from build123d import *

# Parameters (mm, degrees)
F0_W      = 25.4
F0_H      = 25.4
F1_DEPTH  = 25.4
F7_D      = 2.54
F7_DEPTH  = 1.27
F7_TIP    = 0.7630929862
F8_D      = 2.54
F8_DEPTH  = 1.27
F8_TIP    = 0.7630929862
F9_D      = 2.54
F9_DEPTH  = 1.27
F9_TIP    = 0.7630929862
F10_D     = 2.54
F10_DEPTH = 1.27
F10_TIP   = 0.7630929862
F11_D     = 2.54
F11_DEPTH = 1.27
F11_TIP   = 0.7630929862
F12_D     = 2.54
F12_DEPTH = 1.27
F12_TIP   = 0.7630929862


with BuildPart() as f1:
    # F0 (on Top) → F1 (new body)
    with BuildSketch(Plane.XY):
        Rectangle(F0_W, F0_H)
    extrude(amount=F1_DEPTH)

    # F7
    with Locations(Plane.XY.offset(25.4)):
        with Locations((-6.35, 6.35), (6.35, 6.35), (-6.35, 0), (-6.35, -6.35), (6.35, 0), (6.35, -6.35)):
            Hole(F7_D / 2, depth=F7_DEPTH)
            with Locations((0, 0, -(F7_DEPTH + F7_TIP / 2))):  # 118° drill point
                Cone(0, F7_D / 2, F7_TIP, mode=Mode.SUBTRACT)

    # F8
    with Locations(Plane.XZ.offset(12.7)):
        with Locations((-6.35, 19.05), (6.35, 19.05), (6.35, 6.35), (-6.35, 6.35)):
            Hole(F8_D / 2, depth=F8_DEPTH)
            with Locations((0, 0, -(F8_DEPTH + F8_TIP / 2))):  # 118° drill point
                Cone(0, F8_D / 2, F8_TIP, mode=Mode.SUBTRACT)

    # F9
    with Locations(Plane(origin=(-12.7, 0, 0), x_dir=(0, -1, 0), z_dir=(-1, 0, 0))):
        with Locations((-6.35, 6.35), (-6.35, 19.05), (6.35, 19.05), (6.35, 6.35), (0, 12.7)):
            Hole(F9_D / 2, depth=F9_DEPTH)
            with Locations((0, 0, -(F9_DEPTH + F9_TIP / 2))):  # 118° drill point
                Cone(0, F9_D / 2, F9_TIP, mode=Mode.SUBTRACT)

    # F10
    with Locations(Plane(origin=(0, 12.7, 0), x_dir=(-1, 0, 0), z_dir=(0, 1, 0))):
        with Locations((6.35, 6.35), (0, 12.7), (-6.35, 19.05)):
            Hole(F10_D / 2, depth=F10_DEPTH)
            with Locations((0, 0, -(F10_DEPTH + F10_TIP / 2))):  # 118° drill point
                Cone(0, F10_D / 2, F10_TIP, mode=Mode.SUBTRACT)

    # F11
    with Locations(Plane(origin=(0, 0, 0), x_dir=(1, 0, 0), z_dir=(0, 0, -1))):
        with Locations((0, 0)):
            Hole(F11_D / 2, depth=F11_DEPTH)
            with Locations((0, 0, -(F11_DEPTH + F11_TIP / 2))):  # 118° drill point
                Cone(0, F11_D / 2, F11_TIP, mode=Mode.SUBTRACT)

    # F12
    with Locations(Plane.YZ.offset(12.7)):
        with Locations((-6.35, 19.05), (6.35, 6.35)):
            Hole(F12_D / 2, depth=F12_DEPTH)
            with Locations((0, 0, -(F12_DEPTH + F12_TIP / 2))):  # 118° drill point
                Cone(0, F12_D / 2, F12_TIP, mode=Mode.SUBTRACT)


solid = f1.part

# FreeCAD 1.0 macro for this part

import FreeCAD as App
import Part
import Sketcher
Q = App.Units.Quantity

doc = App.newDocument("Part")
params = doc.addObject("Spreadsheet::Sheet", "Params")
for row, (alias, value) in enumerate([
    ("sketch1_width", "1 in"),
    ("pad1_length", "1 in"),
    ("sketch2_diameter", "0.1 in"),
    ("hole_diameter", "0.1 in"),
    ("hole_depth", "0.05 in"),
    ("sketch3_diameter", "0.1 in"),
    ("hole2_diameter", "0.1 in"),
    ("hole2_depth", "0.05 in"),
    ("sketch4_diameter", "0.1 in"),
    ("hole3_diameter", "0.1 in"),
    ("hole3_depth", "0.05 in"),
    ("sketch5_diameter", "0.1 in"),
    ("hole4_diameter", "0.1 in"),
    ("hole4_depth", "0.05 in"),
    ("sketch6_diameter", "0.1 in"),
    ("hole5_diameter", "0.1 in"),
    ("hole5_depth", "0.05 in"),
    ("sketch7_diameter", "0.1 in"),
    ("hole6_diameter", "0.1 in"),
    ("hole6_depth", "0.05 in"),
], start=1):
    params.set(f"A{row}", alias)
    params.set(f"B{row}", "=" + value)
    params.setAlias(f"B{row}", alias)

body = doc.addObject("PartDesign::Body", "Body")

sketch1 = body.newObject("Sketcher::SketchObject", "Sketch")
sketch1.AttachmentSupport = (doc.getObject("XY_Plane"), [""])
sketch1.MapMode = "FlatFace"
sketch1.addGeometry(Part.LineSegment(App.Vector(-12.7, 12.7, 0), App.Vector(-12.7, -12.7, 0)), False)
sketch1.addGeometry(Part.LineSegment(App.Vector(-12.7, -12.7, 0), App.Vector(12.7, -12.7, 0)), False)
sketch1.addGeometry(Part.LineSegment(App.Vector(12.7, -12.7, 0), App.Vector(12.7, 12.7, 0)), False)
sketch1.addGeometry(Part.LineSegment(App.Vector(12.7, 12.7, 0), App.Vector(-12.7, 12.7, 0)), False)
sketch1.addConstraint(Sketcher.Constraint("Coincident", 0, 2, 1, 1))
sketch1.addConstraint(Sketcher.Constraint("Coincident", 1, 2, 2, 1))
sketch1.addConstraint(Sketcher.Constraint("Coincident", 2, 2, 3, 1))
sketch1.addConstraint(Sketcher.Constraint("Coincident", 3, 2, 0, 1))
sketch1.addConstraint(Sketcher.Constraint("Vertical", 0))
sketch1.addConstraint(Sketcher.Constraint("Horizontal", 1))
sketch1.addConstraint(Sketcher.Constraint("Vertical", 2))
sketch1.addConstraint(Sketcher.Constraint("Horizontal", 3))
sketch1.addConstraint(Sketcher.Constraint("Symmetric", 0, 2, 2, 2, -1, 1))
sketch1.addConstraint(Sketcher.Constraint("Equal", 3, 0))
sketch1.addConstraint(Sketcher.Constraint("DistanceX", 1, 1, 1, 2, Q("1 in")))
sketch1.setExpression("Constraints[10]", "Params.sketch1_width")
pad1 = body.newObject("PartDesign::Pad", "Pad")
pad1.Profile = sketch1
pad1.setExpression("Length", "Params.pad1_length")

sketch2 = body.newObject("Sketcher::SketchObject", "Sketch001")
sketch2.AttachmentSupport = (doc.getObject("XY_Plane"), [""])
sketch2.MapMode = "FlatFace"
sketch2.AttachmentOffset = App.Placement(App.Vector(0, 0, 1 * 25.4), App.Rotation())
sketch2.addGeometry(Part.Circle(App.Vector(-6.35, 6.35, 0), App.Vector(0, 0, 1), 1.27), False)
sketch2.addGeometry(Part.Circle(App.Vector(6.35, 6.35, 0), App.Vector(0, 0, 1), 1.27), False)
sketch2.addGeometry(Part.Circle(App.Vector(-6.35, 0, 0), App.Vector(0, 0, 1), 1.27), False)
sketch2.addGeometry(Part.Circle(App.Vector(-6.35, -6.35, 0), App.Vector(0, 0, 1), 1.27), False)
sketch2.addGeometry(Part.Circle(App.Vector(6.35, 0, 0), App.Vector(0, 0, 1), 1.27), False)
sketch2.addGeometry(Part.Circle(App.Vector(6.35, -6.35, 0), App.Vector(0, 0, 1), 1.27), False)
sketch2.addConstraint(Sketcher.Constraint("Equal", 0, 1))
sketch2.addConstraint(Sketcher.Constraint("Equal", 1, 2))
sketch2.addConstraint(Sketcher.Constraint("Equal", 2, 3))
sketch2.addConstraint(Sketcher.Constraint("Equal", 3, 4))
sketch2.addConstraint(Sketcher.Constraint("Equal", 4, 5))
sketch2.addConstraint(Sketcher.Constraint("Symmetric", 1, 3, 3, 3, -1, 1))
sketch2.addConstraint(Sketcher.Constraint("Symmetric", 2, 3, 4, 3, -1, 1))
sketch2.addConstraint(Sketcher.Constraint("Symmetric", 0, 3, 5, 3, -1, 1))
sketch2.addConstraint(Sketcher.Constraint("Symmetric", 0, 3, 1, 3, -2))
sketch2.addConstraint(Sketcher.Constraint("PointOnObject", 2, 3, -1))
sketch2.addConstraint(Sketcher.Constraint("Vertical", 0, 3, 2, 3))
sketch2.addConstraint(Sketcher.Constraint("Diameter", 0, Q("0.1 in")))
sketch2.addConstraint(Sketcher.Constraint("DistanceX", 0, 3, 1, 3, Q("0.5 in")))
sketch2.addConstraint(Sketcher.Constraint("DistanceY", 3, 3, 0, 3, Q("0.5 in")))
sketch2.setExpression("Constraints[11]", "Params.sketch2_diameter")
doc.recompute()
hole = body.newObject("PartDesign::Hole", "Hole")
hole.Profile = sketch2
hole.ThreadType = "None"
hole.setExpression("Diameter", "Params.hole_diameter")
hole.DepthType = "Dimension"
hole.setExpression("Depth", "Params.hole_depth")
hole.DrillPoint = "Angled"
hole.DrillPointAngle = 118

sketch3 = body.newObject("Sketcher::SketchObject", "Sketch002")
sketch3.AttachmentSupport = (doc.getObject("XZ_Plane"), [""])
sketch3.MapMode = "FlatFace"
sketch3.AttachmentOffset = App.Placement(App.Vector(0, 0, 0.5 * 25.4), App.Rotation())
sketch3.addGeometry(Part.Circle(App.Vector(-6.35, 19.05, 0), App.Vector(0, 0, 1), 1.27), False)
sketch3.addGeometry(Part.Circle(App.Vector(6.35, 19.05, 0), App.Vector(0, 0, 1), 1.27), False)
sketch3.addGeometry(Part.Circle(App.Vector(6.35, 6.35, 0), App.Vector(0, 0, 1), 1.27), False)
sketch3.addGeometry(Part.Circle(App.Vector(-6.35, 6.35, 0), App.Vector(0, 0, 1), 1.27), False)
sketch3.addConstraint(Sketcher.Constraint("Equal", 0, 1))
sketch3.addConstraint(Sketcher.Constraint("Equal", 1, 2))
sketch3.addConstraint(Sketcher.Constraint("Equal", 2, 3))
sketch3.addConstraint(Sketcher.Constraint("Symmetric", 0, 3, 1, 3, -2))
sketch3.addConstraint(Sketcher.Constraint("Symmetric", 2, 3, 3, 3, -2))
sketch3.addConstraint(Sketcher.Constraint("Vertical", 1, 3, 2, 3))
sketch3.addConstraint(Sketcher.Constraint("Diameter", 0, Q("0.1 in")))
sketch3.addConstraint(Sketcher.Constraint("DistanceX", 0, 3, 1, 3, Q("0.5 in")))
sketch3.addConstraint(Sketcher.Constraint("DistanceY", 2, 3, 1, 3, Q("0.5 in")))
sketch3.addConstraint(Sketcher.Constraint("DistanceY", -1, 1, 0, 3, Q("0.75 in")))
sketch3.setExpression("Constraints[6]", "Params.sketch3_diameter")
doc.recompute()
hole2 = body.newObject("PartDesign::Hole", "Hole001")
hole2.Profile = sketch3
hole2.ThreadType = "None"
hole2.setExpression("Diameter", "Params.hole2_diameter")
hole2.DepthType = "Dimension"
hole2.setExpression("Depth", "Params.hole2_depth")
hole2.DrillPoint = "Angled"
hole2.DrillPointAngle = 118

sketch4 = body.newObject("Sketcher::SketchObject", "Sketch003")
sketch4.AttachmentSupport = (doc.getObject("YZ_Plane"), [""])
sketch4.MapMode = "FlatFace"
sketch4.AttachmentOffset = App.Placement(App.Vector(0, 0, -0.5 * 25.4), App.Rotation())
sketch4.addGeometry(Part.Circle(App.Vector(6.35, 6.35, 0), App.Vector(0, 0, 1), 1.27), False)
sketch4.addGeometry(Part.Circle(App.Vector(6.35, 19.05, 0), App.Vector(0, 0, 1), 1.27), False)
sketch4.addGeometry(Part.Circle(App.Vector(-6.35, 19.05, 0), App.Vector(0, 0, 1), 1.27), False)
sketch4.addGeometry(Part.Circle(App.Vector(-6.35, 6.35, 0), App.Vector(0, 0, 1), 1.27), False)
sketch4.addGeometry(Part.Circle(App.Vector(0, 12.7, 0), App.Vector(0, 0, 1), 1.27), False)
sketch4.addConstraint(Sketcher.Constraint("Equal", 0, 1))
sketch4.addConstraint(Sketcher.Constraint("Equal", 1, 2))
sketch4.addConstraint(Sketcher.Constraint("Equal", 2, 3))
sketch4.addConstraint(Sketcher.Constraint("Equal", 3, 4))
sketch4.addConstraint(Sketcher.Constraint("Symmetric", 1, 3, 2, 3, -2))
sketch4.addConstraint(Sketcher.Constraint("Symmetric", 0, 3, 3, 3, -2))
sketch4.addConstraint(Sketcher.Constraint("PointOnObject", 4, 3, -2))
sketch4.addConstraint(Sketcher.Constraint("Vertical", 0, 3, 1, 3))
sketch4.addConstraint(Sketcher.Constraint("Diameter", 0, Q("0.1 in")))
sketch4.addConstraint(Sketcher.Constraint("DistanceY", -1, 1, 4, 3, Q("0.5 in")))
sketch4.addConstraint(Sketcher.Constraint("DistanceY", 0, 3, 1, 3, Q("0.5 in")))
sketch4.addConstraint(Sketcher.Constraint("DistanceX", 2, 3, 1, 3, Q("0.5 in")))
sketch4.addConstraint(Sketcher.Constraint("DistanceY", -1, 1, 0, 3, Q("0.25 in")))
sketch4.setExpression("Constraints[8]", "Params.sketch4_diameter")
doc.recompute()
hole3 = body.newObject("PartDesign::Hole", "Hole002")
hole3.Profile = sketch4
hole3.ThreadType = "None"
hole3.setExpression("Diameter", "Params.hole3_diameter")
hole3.DepthType = "Dimension"
hole3.setExpression("Depth", "Params.hole3_depth")
hole3.DrillPoint = "Angled"
hole3.DrillPointAngle = 118
hole3.Reversed = True

sketch5 = body.newObject("Sketcher::SketchObject", "Sketch004")
sketch5.AttachmentSupport = (doc.getObject("XZ_Plane"), [""])
sketch5.MapMode = "FlatFace"
sketch5.AttachmentOffset = App.Placement(App.Vector(0, 0, -0.5 * 25.4), App.Rotation())
sketch5.addGeometry(Part.Circle(App.Vector(-6.35, 6.35, 0), App.Vector(0, 0, 1), 1.27), False)
sketch5.addGeometry(Part.Circle(App.Vector(0, 12.7, 0), App.Vector(0, 0, 1), 1.27), False)
sketch5.addGeometry(Part.Circle(App.Vector(6.35, 19.05, 0), App.Vector(0, 0, 1), 1.27), False)
sketch5.addConstraint(Sketcher.Constraint("Equal", 0, 1))
sketch5.addConstraint(Sketcher.Constraint("Equal", 1, 2))
sketch5.addConstraint(Sketcher.Constraint("PointOnObject", 1, 3, -2))
sketch5.addConstraint(Sketcher.Constraint("Diameter", 0, Q("0.1 in")))
sketch5.addConstraint(Sketcher.Constraint("DistanceY", -1, 1, 1, 3, Q("0.5 in")))
sketch5.addConstraint(Sketcher.Constraint("DistanceX", 0, 3, 2, 3, Q("0.5 in")))
sketch5.addConstraint(Sketcher.Constraint("DistanceY", 0, 3, 2, 3, Q("0.5 in")))
sketch5.addConstraint(Sketcher.Constraint("DistanceX", 0, 3, -1, 1, Q("0.25 in")))
sketch5.addConstraint(Sketcher.Constraint("DistanceY", -1, 1, 0, 3, Q("0.25 in")))
sketch5.setExpression("Constraints[3]", "Params.sketch5_diameter")
doc.recompute()
hole4 = body.newObject("PartDesign::Hole", "Hole003")
hole4.Profile = sketch5
hole4.ThreadType = "None"
hole4.setExpression("Diameter", "Params.hole4_diameter")
hole4.DepthType = "Dimension"
hole4.setExpression("Depth", "Params.hole4_depth")
hole4.DrillPoint = "Angled"
hole4.DrillPointAngle = 118
hole4.Reversed = True

sketch6 = body.newObject("Sketcher::SketchObject", "Sketch005")
sketch6.AttachmentSupport = (doc.getObject("XY_Plane"), [""])
sketch6.MapMode = "FlatFace"
sketch6.addGeometry(Part.Circle(App.Vector(0, 0, 0), App.Vector(0, 0, 1), 1.27), False)
sketch6.addConstraint(Sketcher.Constraint("Coincident", 0, 3, -1, 1))
sketch6.addConstraint(Sketcher.Constraint("Diameter", 0, Q("0.1 in")))
sketch6.setExpression("Constraints[1]", "Params.sketch6_diameter")
doc.recompute()
hole5 = body.newObject("PartDesign::Hole", "Hole004")
hole5.Profile = sketch6
hole5.ThreadType = "None"
hole5.setExpression("Diameter", "Params.hole5_diameter")
hole5.DepthType = "Dimension"
hole5.setExpression("Depth", "Params.hole5_depth")
hole5.DrillPoint = "Angled"
hole5.DrillPointAngle = 118
hole5.Reversed = True

sketch7 = body.newObject("Sketcher::SketchObject", "Sketch006")
sketch7.AttachmentSupport = (doc.getObject("YZ_Plane"), [""])
sketch7.MapMode = "FlatFace"
sketch7.AttachmentOffset = App.Placement(App.Vector(0, 0, 0.5 * 25.4), App.Rotation())
sketch7.addGeometry(Part.Circle(App.Vector(-6.35, 19.05, 0), App.Vector(0, 0, 1), 1.27), False)
sketch7.addGeometry(Part.Circle(App.Vector(6.35, 6.35, 0), App.Vector(0, 0, 1), 1.27), False)
sketch7.addConstraint(Sketcher.Constraint("Equal", 0, 1))
sketch7.addConstraint(Sketcher.Constraint("Diameter", 0, Q("0.1 in")))
sketch7.addConstraint(Sketcher.Constraint("DistanceX", 0, 3, 1, 3, Q("0.5 in")))
sketch7.addConstraint(Sketcher.Constraint("DistanceY", 1, 3, 0, 3, Q("0.5 in")))
sketch7.addConstraint(Sketcher.Constraint("DistanceX", 0, 3, -1, 1, Q("0.25 in")))
sketch7.addConstraint(Sketcher.Constraint("DistanceY", -1, 1, 0, 3, Q("0.75 in")))
sketch7.setExpression("Constraints[1]", "Params.sketch7_diameter")
doc.recompute()
hole6 = body.newObject("PartDesign::Hole", "Hole005")
hole6.Profile = sketch7
hole6.ThreadType = "None"
hole6.setExpression("Diameter", "Params.hole6_diameter")
hole6.DepthType = "Dimension"
hole6.setExpression("Depth", "Params.hole6_depth")
hole6.DrillPoint = "Angled"
hole6.DrillPointAngle = 118

doc.recompute()
